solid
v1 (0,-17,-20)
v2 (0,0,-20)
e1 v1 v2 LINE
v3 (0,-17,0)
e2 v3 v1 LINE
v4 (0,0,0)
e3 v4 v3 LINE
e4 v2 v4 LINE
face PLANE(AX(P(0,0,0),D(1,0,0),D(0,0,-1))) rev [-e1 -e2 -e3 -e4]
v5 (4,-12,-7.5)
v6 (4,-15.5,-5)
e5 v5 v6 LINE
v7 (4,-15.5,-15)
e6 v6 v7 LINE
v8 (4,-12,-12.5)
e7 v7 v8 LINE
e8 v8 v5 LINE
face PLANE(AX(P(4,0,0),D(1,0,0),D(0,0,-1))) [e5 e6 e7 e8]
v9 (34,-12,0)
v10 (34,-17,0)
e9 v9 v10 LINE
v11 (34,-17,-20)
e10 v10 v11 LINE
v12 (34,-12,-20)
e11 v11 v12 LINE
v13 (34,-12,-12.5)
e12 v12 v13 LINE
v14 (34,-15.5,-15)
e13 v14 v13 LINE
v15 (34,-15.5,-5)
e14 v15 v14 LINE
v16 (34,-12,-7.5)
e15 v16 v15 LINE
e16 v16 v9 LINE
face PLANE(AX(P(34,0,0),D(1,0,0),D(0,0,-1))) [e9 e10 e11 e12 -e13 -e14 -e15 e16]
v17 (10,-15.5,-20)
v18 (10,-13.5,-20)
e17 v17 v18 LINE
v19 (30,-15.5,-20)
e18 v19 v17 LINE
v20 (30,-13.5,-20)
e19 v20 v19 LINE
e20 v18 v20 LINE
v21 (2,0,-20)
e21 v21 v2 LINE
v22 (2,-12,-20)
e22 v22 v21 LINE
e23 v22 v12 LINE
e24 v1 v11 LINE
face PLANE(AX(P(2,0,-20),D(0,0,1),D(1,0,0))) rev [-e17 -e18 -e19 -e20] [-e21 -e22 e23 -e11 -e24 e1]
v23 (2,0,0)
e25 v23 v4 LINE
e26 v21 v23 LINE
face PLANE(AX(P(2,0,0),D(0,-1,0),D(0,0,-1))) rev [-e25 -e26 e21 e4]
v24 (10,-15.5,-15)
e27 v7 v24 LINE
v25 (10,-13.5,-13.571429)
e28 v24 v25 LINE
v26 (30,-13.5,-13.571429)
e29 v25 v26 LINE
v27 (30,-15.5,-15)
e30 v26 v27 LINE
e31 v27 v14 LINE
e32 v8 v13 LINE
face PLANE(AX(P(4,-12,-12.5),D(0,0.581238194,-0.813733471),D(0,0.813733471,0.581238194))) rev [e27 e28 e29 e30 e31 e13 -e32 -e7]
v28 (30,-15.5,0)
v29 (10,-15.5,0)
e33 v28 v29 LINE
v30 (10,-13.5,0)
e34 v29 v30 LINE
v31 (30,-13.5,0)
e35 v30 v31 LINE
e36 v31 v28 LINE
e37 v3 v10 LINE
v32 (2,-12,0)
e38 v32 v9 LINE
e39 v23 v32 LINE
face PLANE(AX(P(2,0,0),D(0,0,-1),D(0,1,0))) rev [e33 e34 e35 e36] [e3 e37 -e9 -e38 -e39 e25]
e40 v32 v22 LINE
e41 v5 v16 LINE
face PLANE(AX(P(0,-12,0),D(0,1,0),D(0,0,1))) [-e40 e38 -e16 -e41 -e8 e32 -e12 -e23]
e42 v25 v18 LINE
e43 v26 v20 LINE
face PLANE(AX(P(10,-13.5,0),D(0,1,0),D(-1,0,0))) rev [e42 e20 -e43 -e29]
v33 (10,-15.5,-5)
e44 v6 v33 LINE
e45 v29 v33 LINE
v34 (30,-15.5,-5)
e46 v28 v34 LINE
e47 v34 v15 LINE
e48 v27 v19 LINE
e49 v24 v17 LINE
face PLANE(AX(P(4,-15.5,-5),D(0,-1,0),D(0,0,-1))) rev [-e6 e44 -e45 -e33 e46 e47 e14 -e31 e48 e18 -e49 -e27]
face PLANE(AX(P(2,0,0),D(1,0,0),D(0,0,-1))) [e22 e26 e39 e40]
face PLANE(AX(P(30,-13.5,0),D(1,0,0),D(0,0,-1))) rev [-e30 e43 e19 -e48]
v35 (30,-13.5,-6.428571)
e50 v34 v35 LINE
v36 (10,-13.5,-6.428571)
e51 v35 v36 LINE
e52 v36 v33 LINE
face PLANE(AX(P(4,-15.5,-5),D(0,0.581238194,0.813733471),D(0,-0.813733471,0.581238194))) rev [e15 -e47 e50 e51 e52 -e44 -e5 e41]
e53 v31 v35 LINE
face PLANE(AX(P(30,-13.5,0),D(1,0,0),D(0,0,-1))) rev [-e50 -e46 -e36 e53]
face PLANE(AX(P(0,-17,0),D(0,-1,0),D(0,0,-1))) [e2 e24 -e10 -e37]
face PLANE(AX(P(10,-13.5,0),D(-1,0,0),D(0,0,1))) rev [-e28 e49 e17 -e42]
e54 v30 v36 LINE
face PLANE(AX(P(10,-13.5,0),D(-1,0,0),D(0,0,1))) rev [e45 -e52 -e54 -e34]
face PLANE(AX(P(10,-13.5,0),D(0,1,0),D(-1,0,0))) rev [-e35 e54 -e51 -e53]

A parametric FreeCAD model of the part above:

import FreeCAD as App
import Part
import Sketcher

V = App.Vector
Q = App.Units.Quantity


def add_polygon(sketch, points):
    """Adds a closed chain of lines whose ends are joined by coincident constraints."""
    first, n = sketch.GeometryCount, len(points)
    for a, b in zip(points, points[1:] + points[:1]):
        sketch.addGeometry(Part.LineSegment(App.Vector(*a, 0), App.Vector(*b, 0)), False)
    for i in range(n):
        sketch.addConstraint(Sketcher.Constraint("Coincident", first + i, 2, first + (i + 1) % n, 1))

doc = App.newDocument("Part")
body = doc.addObject("PartDesign::Body", "Body")

sketch1 = body.newObject("Sketcher::SketchObject", "Sketch")
sketch1.AttachmentSupport = (doc.getObject("YZ_Plane"), [""])
sketch1.MapMode = "FlatFace"
add_polygon(sketch1, [(0, 0), (-12, 0), (-12, -20), (0, -20)])
sketch1.addConstraint([
    Sketcher.Constraint("Horizontal", 0),
    Sketcher.Constraint("Vertical", 1),
    Sketcher.Constraint("Horizontal", 2),
    Sketcher.Constraint("Vertical", 3),
    Sketcher.Constraint("Coincident", 3, 2, -1, 1),
    Sketcher.Constraint("DistanceX", 0, 2, 0, 1, Q("12 mm")),
    Sketcher.Constraint("DistanceY", 1, 2, 1, 1, Q("20 mm")),
])
pad1 = body.newObject("PartDesign::Pad", "Pad")
pad1.Profile = sketch1
pad1.Length = 2

sketch2 = body.newObject("Sketcher::SketchObject", "Sketch001")
sketch2.AttachmentSupport = (doc.getObject("YZ_Plane"), [""])
sketch2.MapMode = "FlatFace"
sketch2.AttachmentOffset = App.Placement(V(0, 0, 2), App.Rotation())
add_polygon(sketch2, [(-12, 0), (-17, 0), (-17, -20), (-12, -20)])
sketch2.addConstraint([
    Sketcher.Constraint("Horizontal", 0),
    Sketcher.Constraint("Vertical", 1),
    Sketcher.Constraint("Horizontal", 2),
    Sketcher.Constraint("Vertical", 3),
    Sketcher.Constraint("PointOnObject", 0, 2, -1),
    Sketcher.Constraint("DistanceX", 0, 2, 0, 1, Q("5 mm")),
    Sketcher.Constraint("DistanceY", 1, 2, 1, 1, Q("20 mm")),
    Sketcher.Constraint("DistanceX", 0, 2, -1, 1, Q("17 mm")),
])
pad2 = body.newObject("PartDesign::Pad", "Pad001")
pad2.Profile = sketch2
pad2.Type = "TwoLengths"
pad2.Length = 32
pad2.Length2 = 2

sketch3 = body.newObject("Sketcher::SketchObject", "Sketch002")
sketch3.AttachmentSupport = (doc.getObject("YZ_Plane"), [""])
sketch3.MapMode = "FlatFace"
sketch3.AttachmentOffset = App.Placement(V(0, 0, 34), App.Rotation())
add_polygon(sketch3, [(-15.5, -5), (-15.5, -15), (-12, -12.5), (-12, -7.5)])
sketch3.addConstraint([
    Sketcher.Constraint("Vertical", 0),
    Sketcher.Constraint("Vertical", 2),
    Sketcher.Constraint("Equal", 1, 3),
    Sketcher.Constraint("DistanceY", 0, 2, 0, 1, Q("10 mm")),
    Sketcher.Constraint("DistanceY", 2, 1, 2, 2, Q("5 mm")),
    Sketcher.Constraint("DistanceY", 0, 2, -1, 1, Q("15 mm")),
    Sketcher.Constraint("DistanceX", 1, 2, -1, 1, Q("12 mm")),
    Sketcher.Constraint("DistanceX", 0, 2, -1, 1, Q("15.5 mm")),
])
pocket1 = body.newObject("PartDesign::Pocket", "Pocket")
pocket1.Profile = sketch3
pocket1.Length = 30

sketch4 = body.newObject("Sketcher::SketchObject", "Sketch003")
sketch4.AttachmentSupport = (doc.getObject("XY_Plane"), [""])
sketch4.MapMode = "FlatFace"
sketch4.AttachmentOffset = App.Placement(V(0, 0, -20), App.Rotation())
add_polygon(sketch4, [(30, -13.5), (30, -15.5), (10, -15.5), (10, -13.5)])
sketch4.addConstraint([
    Sketcher.Constraint("Vertical", 0),
    Sketcher.Constraint("Horizontal", 1),
    Sketcher.Constraint("Vertical", 2),
    Sketcher.Constraint("Horizontal", 3),
    Sketcher.Constraint("DistanceX", 1, 2, 1, 1, Q("20 mm")),
    Sketcher.Constraint("DistanceY", 0, 2, 0, 1, Q("2 mm")),
    Sketcher.Constraint("DistanceX", -1, 1, 0, 2, Q("30 mm")),
    Sketcher.Constraint("DistanceY", 0, 2, -1, 1, Q("15.5 mm")),
])
pocket2 = body.newObject("PartDesign::Pocket", "Pocket001")
pocket2.Profile = sketch4
pocket2.Type = "ThroughAll"
pocket2.Reversed = True

doc.recompute()
